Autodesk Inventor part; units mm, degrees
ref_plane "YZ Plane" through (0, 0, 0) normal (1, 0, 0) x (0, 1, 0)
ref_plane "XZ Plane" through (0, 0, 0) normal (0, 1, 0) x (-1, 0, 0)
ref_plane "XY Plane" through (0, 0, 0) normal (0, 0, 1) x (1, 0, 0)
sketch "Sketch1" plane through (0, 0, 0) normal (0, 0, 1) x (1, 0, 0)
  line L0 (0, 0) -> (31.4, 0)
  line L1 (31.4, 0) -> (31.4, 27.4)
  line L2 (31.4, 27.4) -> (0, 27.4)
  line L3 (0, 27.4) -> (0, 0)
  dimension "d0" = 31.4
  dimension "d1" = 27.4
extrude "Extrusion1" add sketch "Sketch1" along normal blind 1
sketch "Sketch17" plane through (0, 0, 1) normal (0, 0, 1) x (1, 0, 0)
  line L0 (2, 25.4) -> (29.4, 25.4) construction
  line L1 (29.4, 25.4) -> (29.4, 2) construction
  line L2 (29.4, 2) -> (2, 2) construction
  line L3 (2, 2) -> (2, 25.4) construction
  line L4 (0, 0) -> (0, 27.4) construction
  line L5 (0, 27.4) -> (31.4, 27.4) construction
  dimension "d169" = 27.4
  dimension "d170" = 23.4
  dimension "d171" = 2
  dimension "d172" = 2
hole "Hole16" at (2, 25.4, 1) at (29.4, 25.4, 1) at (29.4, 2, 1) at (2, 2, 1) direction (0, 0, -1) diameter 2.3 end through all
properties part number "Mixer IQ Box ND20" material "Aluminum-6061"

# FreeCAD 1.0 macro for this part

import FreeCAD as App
import Part
import Sketcher
from FreeCAD import Vector
Q = App.Units.Quantity


def add_polygon(sketch, points):
    """Adds a closed chain of lines whose ends are joined by coincident constraints."""
    first, n = sketch.GeometryCount, len(points)
    for a, b in zip(points, points[1:] + points[:1]):
        sketch.addGeometry(Part.LineSegment(App.Vector(*a, 0), App.Vector(*b, 0)), False)
    for i in range(n):
        sketch.addConstraint(Sketcher.Constraint("Coincident", first + i, 2, first + (i + 1) % n, 1))

doc = App.newDocument("Part")
body = doc.addObject("PartDesign::Body", "Body")

# Sketch on XY plane
sketch1 = doc.addObject("Sketcher::SketchObject", "Sketch")
body.addObject(sketch1)
sketch1.AttachmentSupport = (doc.XY_Plane, [""])
sketch1.MapMode = "FlatFace"
add_polygon(sketch1, [(0, 27), (0, 0), (31, 0), (31, 27)])  # lines 0-3
sketch1.addConstraint(Sketcher.Constraint("Vertical", 0))
sketch1.addConstraint(Sketcher.Constraint("Horizontal", 1))
sketch1.addConstraint(Sketcher.Constraint("Vertical", 2))
sketch1.addConstraint(Sketcher.Constraint("Horizontal", 3))
sketch1.addConstraint(Sketcher.Constraint("Coincident", 0, 2, -1, 1))
sketch1.addConstraint(Sketcher.Constraint("DistanceX", 1, 1, 1, 2, Q("31.4 mm")))
sketch1.addConstraint(Sketcher.Constraint("DistanceY", 0, 2, 0, 1, Q("27.4 mm")))
pad1 = doc.addObject("PartDesign::Pad", "Pad")
body.addObject(pad1)
pad1.Profile = sketch1
pad1.Length = 1

# Sketch on XY plane
sketch2 = doc.addObject("Sketcher::SketchObject", "Sketch001")
body.addObject(sketch2)
sketch2.AttachmentSupport = (doc.XY_Plane, [""])
sketch2.MapMode = "FlatFace"
sketch2.AttachmentOffset = App.Placement(Vector(0, 0, 1), App.Rotation())
sketch2.addGeometry(Part.Circle(Vector(2, 25.4, 0), Vector(0, 0, 1), 1.1), False)
sketch2.addGeometry(Part.Circle(Vector(29.4, 25.4, 0), Vector(0, 0, 1), 1.1), False)
sketch2.addGeometry(Part.Circle(Vector(29.4, 2, 0), Vector(0, 0, 1), 1.1), False)
sketch2.addGeometry(Part.Circle(Vector(2, 2, 0), Vector(0, 0, 1), 1.1), False)
sketch2.addConstraint(Sketcher.Constraint("Equal", 0, 1))
sketch2.addConstraint(Sketcher.Constraint("Equal", 1, 2))
sketch2.addConstraint(Sketcher.Constraint("Equal", 2, 3))
sketch2.addConstraint(Sketcher.Constraint("Horizontal", 0, 3, 1, 3))
sketch2.addConstraint(Sketcher.Constraint("Horizontal", 2, 3, 3, 3))
sketch2.addConstraint(Sketcher.Constraint("Vertical", 1, 3, 2, 3))
sketch2.addConstraint(Sketcher.Constraint("Vertical", 0, 3, 3, 3))
sketch2.addConstraint(Sketcher.Constraint("Diameter", 0, Q("2.3 mm")))
sketch2.addConstraint(Sketcher.Constraint("DistanceX", -1, 1, 0, 3, Q("2 mm")))
sketch2.addConstraint(Sketcher.Constraint("DistanceY", -1, 1, 2, 3, Q("2 mm")))
sketch2.addConstraint(Sketcher.Constraint("DistanceY", -1, 1, 0, 3, Q("25.4 mm")))
sketch2.addConstraint(Sketcher.Constraint("DistanceX", -1, 1, 1, 3, Q("29.4 mm")))
doc.recompute()
hole = doc.addObject("PartDesign::Hole", "Hole")
body.addObject(hole)
hole.Profile = sketch2
hole.ThreadType = "None"
hole.Diameter = 2.3
hole.DepthType = "ThroughAll"

doc.recompute()
